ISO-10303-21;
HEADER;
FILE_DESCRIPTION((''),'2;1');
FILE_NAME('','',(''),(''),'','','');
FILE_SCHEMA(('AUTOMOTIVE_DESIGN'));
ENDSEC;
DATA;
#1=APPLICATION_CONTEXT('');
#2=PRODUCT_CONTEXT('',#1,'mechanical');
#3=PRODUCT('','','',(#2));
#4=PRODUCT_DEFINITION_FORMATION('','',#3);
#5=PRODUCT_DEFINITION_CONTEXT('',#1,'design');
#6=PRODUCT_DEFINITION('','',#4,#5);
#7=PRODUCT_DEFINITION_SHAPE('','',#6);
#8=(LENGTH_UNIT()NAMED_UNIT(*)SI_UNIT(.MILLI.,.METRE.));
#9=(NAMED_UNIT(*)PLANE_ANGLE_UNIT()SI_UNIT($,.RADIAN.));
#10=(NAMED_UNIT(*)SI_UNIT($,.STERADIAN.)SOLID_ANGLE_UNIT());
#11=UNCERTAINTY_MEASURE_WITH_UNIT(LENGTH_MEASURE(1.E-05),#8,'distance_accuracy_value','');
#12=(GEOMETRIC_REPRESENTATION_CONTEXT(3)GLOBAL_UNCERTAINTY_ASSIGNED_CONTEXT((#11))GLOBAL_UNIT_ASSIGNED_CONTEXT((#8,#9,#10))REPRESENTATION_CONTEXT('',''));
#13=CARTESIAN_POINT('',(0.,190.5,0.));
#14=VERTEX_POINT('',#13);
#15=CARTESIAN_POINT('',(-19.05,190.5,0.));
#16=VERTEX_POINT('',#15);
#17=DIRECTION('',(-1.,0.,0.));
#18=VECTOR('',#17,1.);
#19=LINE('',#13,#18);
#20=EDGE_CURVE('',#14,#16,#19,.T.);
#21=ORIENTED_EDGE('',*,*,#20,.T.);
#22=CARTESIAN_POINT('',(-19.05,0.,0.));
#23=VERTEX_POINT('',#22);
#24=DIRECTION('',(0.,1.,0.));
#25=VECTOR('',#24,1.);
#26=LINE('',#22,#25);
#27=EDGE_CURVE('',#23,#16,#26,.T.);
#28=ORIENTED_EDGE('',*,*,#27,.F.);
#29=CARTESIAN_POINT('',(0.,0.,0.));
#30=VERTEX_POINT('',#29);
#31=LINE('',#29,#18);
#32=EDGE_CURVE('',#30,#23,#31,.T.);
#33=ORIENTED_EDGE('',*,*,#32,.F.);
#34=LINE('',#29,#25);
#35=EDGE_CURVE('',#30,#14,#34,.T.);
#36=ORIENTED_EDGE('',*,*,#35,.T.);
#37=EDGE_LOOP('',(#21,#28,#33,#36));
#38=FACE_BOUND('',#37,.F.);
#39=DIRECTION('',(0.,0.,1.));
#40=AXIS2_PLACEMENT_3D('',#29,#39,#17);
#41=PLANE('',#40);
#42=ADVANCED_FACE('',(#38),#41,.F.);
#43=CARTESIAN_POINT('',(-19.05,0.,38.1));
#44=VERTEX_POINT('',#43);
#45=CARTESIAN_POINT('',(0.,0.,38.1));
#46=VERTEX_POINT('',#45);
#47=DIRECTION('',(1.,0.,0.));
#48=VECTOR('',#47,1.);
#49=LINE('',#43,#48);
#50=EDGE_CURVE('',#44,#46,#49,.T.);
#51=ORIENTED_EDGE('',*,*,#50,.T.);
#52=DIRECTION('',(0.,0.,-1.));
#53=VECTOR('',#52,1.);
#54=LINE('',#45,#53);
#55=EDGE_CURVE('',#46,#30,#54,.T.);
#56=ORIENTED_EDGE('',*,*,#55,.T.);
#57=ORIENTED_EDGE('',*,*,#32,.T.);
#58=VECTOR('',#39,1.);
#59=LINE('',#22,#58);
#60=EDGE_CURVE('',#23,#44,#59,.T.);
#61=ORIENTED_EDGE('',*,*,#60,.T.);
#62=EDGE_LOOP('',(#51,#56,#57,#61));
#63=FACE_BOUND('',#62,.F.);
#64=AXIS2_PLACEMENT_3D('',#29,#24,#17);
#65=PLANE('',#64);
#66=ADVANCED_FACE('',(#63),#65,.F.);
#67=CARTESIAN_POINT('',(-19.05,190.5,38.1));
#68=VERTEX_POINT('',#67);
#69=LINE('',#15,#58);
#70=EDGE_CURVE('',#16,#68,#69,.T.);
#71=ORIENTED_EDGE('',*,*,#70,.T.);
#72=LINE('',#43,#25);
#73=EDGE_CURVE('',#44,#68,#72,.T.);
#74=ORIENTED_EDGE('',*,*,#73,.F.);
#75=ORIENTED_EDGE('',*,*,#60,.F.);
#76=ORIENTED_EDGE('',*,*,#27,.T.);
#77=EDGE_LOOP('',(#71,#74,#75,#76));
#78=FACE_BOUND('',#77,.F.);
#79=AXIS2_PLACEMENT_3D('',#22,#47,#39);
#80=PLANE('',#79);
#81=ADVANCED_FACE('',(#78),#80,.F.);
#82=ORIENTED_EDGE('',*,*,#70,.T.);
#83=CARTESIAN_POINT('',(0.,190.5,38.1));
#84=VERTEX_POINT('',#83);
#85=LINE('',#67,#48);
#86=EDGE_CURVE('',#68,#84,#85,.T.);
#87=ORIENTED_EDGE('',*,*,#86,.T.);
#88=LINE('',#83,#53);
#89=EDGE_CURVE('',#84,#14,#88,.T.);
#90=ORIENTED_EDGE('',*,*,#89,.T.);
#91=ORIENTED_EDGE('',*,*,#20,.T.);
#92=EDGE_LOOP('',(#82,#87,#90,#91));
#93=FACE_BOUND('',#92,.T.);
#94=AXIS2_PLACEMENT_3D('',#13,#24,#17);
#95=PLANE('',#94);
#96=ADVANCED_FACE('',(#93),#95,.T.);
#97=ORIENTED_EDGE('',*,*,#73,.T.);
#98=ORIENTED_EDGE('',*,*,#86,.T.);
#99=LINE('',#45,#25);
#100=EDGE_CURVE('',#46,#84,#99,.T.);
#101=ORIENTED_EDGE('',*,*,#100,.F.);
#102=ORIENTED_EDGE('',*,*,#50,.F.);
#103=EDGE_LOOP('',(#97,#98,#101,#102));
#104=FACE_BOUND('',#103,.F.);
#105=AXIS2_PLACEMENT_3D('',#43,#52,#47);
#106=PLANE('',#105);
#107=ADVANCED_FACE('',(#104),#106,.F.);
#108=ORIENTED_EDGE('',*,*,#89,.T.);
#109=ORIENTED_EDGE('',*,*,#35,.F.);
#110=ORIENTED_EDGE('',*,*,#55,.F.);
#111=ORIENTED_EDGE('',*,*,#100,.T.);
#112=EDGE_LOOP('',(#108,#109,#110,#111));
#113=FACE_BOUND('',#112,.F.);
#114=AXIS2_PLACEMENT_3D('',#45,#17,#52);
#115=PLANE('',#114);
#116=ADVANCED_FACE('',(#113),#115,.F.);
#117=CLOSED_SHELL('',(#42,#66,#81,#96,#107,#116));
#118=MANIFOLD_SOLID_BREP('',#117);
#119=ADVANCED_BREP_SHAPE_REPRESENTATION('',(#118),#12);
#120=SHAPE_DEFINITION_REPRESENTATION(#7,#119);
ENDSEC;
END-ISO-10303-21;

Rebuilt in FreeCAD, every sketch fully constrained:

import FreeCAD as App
import Part
import Sketcher
Q = App.Units.Quantity


def add_polygon(sketch, points):
    """Adds a closed chain of lines whose ends are joined by coincident constraints."""
    first, n = sketch.GeometryCount, len(points)
    for a, b in zip(points, points[1:] + points[:1]):
        sketch.addGeometry(Part.LineSegment(App.Vector(*a, 0), App.Vector(*b, 0)), False)
    for i in range(n):
        sketch.addConstraint(Sketcher.Constraint("Coincident", first + i, 2, first + (i + 1) % n, 1))

doc = App.newDocument("Part")
body = doc.addObject("PartDesign::Body", "Body")

# Sketch on XZ plane
sketch1 = body.newObject("Sketcher::SketchObject", "Sketch")
sketch1.AttachmentSupport = (doc.getObject("XZ_Plane"), [""])
sketch1.MapMode = "FlatFace"
add_polygon(sketch1, [(0, 38), (0, 0), (-19, 0), (-19, 38)])  # lines 0-3
sketch1.addConstraint([
    Sketcher.Constraint("Vertical", 0),
    Sketcher.Constraint("Horizontal", 1),
    Sketcher.Constraint("Vertical", 2),
    Sketcher.Constraint("Horizontal", 3),
    Sketcher.Constraint("Coincident", 0, 2, -1, 1),
    Sketcher.Constraint("DistanceY", 0, 2, 0, 1, Q("1.5 in")),
    Sketcher.Constraint("DistanceX", 1, 2, 1, 1, Q("0.75 in")),
])
pad1 = body.newObject("PartDesign::Pad", "Pad")
pad1.Profile = sketch1
pad1.Length = Q("7.5 in")
pad1.Reversed = True

doc.recompute()
